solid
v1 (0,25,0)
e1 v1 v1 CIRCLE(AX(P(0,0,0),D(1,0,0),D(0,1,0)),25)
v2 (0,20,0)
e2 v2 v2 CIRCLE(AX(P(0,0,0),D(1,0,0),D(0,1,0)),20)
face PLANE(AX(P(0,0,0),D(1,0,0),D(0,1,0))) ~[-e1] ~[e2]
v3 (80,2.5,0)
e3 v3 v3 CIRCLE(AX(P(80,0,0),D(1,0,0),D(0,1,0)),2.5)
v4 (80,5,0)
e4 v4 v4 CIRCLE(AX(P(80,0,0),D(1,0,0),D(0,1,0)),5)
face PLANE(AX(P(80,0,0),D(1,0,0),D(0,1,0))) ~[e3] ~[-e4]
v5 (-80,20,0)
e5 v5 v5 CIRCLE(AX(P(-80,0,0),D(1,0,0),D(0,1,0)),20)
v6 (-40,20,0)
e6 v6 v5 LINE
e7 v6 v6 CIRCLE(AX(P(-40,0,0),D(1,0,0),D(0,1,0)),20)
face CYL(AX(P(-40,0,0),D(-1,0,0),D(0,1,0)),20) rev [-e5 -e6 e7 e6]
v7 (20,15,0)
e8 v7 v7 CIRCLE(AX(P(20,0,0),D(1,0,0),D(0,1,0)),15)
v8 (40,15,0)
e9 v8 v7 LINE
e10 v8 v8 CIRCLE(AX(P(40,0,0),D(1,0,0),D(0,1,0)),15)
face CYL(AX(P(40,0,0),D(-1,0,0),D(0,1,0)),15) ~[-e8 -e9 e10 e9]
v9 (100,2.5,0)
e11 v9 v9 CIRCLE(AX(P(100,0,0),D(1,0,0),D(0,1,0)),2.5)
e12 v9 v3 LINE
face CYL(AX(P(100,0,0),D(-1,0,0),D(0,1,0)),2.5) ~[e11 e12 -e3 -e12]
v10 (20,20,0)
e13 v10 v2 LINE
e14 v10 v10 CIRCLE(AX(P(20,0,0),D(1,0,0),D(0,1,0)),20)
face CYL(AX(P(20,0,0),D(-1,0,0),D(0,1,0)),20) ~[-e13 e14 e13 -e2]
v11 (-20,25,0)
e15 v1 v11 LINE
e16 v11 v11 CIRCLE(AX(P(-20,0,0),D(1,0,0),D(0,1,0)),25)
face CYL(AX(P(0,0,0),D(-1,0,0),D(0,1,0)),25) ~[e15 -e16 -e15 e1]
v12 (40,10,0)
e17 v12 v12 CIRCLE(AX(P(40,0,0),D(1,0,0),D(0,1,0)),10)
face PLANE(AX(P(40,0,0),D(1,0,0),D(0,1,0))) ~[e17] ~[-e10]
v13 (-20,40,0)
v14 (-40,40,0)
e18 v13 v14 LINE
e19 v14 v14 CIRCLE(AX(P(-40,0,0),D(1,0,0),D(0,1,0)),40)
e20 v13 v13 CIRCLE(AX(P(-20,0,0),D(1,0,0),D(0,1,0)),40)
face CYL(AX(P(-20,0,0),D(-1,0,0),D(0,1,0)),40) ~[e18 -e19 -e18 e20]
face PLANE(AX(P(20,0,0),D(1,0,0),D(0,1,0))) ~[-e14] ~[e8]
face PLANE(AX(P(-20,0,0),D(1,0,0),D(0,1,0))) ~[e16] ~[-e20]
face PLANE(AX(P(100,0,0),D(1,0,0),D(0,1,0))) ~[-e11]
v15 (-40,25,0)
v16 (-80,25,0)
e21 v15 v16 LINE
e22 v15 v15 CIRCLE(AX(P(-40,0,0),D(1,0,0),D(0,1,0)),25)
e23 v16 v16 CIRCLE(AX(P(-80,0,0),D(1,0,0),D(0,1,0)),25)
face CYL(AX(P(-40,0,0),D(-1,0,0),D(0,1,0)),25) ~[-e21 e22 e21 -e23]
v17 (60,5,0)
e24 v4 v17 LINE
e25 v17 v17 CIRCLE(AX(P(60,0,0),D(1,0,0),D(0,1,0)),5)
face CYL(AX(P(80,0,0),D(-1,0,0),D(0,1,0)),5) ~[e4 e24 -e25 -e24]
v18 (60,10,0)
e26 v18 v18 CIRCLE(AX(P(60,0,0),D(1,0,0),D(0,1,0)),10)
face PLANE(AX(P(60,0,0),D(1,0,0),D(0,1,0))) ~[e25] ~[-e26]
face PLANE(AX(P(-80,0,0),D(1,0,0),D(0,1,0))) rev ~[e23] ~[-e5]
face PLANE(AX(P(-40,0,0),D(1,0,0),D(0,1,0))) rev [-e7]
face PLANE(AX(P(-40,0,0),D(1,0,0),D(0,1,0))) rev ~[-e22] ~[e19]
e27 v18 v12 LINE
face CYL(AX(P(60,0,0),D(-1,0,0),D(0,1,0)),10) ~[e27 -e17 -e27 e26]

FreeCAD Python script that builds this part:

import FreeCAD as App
import Part
import Sketcher
from FreeCAD import Vector


def add_polygon(sketch, points):
    """Adds a closed chain of lines whose ends are joined by coincident constraints."""
    first, n = sketch.GeometryCount, len(points)
    for a, b in zip(points, points[1:] + points[:1]):
        sketch.addGeometry(Part.LineSegment(App.Vector(*a, 0), App.Vector(*b, 0)), False)
    for i in range(n):
        sketch.addConstraint(Sketcher.Constraint("Coincident", first + i, 2, first + (i + 1) % n, 1))

doc = App.newDocument("Part")
body = doc.addObject("PartDesign::Body", "Body")

sketch1 = doc.addObject("Sketcher::SketchObject", "Sketch")
body.addObject(sketch1)
sketch1.AttachmentSupport = (doc.XY_Plane, [""])
sketch1.MapMode = "FlatFace"
add_polygon(sketch1, [(-40, 20), (-40, 0), (100, 0), (100, 2.5), (80, 2.5), (80, 5), (60, 5), (60, 10), (40, 10), (40, 15), (20, 15), (20, 20), (0, 20), (0, 25), (-20, 25), (-20, 40), (-40, 40), (-40, 25), (-80, 25), (-80, 20)])
sketch1.addConstraint(Sketcher.Constraint("Vertical", 0))
sketch1.addConstraint(Sketcher.Constraint("Horizontal", 1))
sketch1.addConstraint(Sketcher.Constraint("Vertical", 2))
sketch1.addConstraint(Sketcher.Constraint("Horizontal", 3))
sketch1.addConstraint(Sketcher.Constraint("Vertical", 4))
sketch1.addConstraint(Sketcher.Constraint("Horizontal", 5))
sketch1.addConstraint(Sketcher.Constraint("Vertical", 6))
sketch1.addConstraint(Sketcher.Constraint("Horizontal", 7))
sketch1.addConstraint(Sketcher.Constraint("Vertical", 8))
sketch1.addConstraint(Sketcher.Constraint("Horizontal", 9))
sketch1.addConstraint(Sketcher.Constraint("Vertical", 10))
sketch1.addConstraint(Sketcher.Constraint("Horizontal", 11))
sketch1.addConstraint(Sketcher.Constraint("Vertical", 12))
sketch1.addConstraint(Sketcher.Constraint("Horizontal", 13))
sketch1.addConstraint(Sketcher.Constraint("Vertical", 14))
sketch1.addConstraint(Sketcher.Constraint("Horizontal", 15))
sketch1.addConstraint(Sketcher.Constraint("Vertical", 16))
sketch1.addConstraint(Sketcher.Constraint("Horizontal", 17))
sketch1.addConstraint(Sketcher.Constraint("Vertical", 18))
sketch1.addConstraint(Sketcher.Constraint("Horizontal", 19))
sketch1.addConstraint(Sketcher.Constraint("PointOnObject", 0, 2, -1))
sketch1.addConstraint(Sketcher.Constraint("PointOnObject", 11, 2, -2))
sketch1.addConstraint(Sketcher.Constraint("Horizontal", 13, 2, 16, 2))
sketch1.addConstraint(Sketcher.Constraint("Horizontal", 11, 2, 18, 2))
sketch1.addConstraint(Sketcher.Constraint("Vertical", 0, 2, 15, 2))
sketch1.addConstraint(Sketcher.Constraint("Equal", 3, 5))
sketch1.addConstraint(Sketcher.Constraint("Equal", 5, 7))
sketch1.addConstraint(Sketcher.Constraint("Equal", 7, 9))
sketch1.addConstraint(Sketcher.Constraint("Equal", 9, 11))
sketch1.addConstraint(Sketcher.Constraint("Equal", 11, 13))
sketch1.addConstraint(Sketcher.Constraint("Equal", 13, 15))
sketch1.addConstraint(Sketcher.Constraint("Equal", 15, 0))
sketch1.addConstraint(Sketcher.Constraint("Equal", 2, 4))
sketch1.addConstraint(Sketcher.Constraint("Equal", 6, 8))
sketch1.addConstraint(Sketcher.Constraint("Equal", 8, 10))
sketch1.addConstraint(Sketcher.Constraint("Equal", 10, 12))
sketch1.addConstraint(Sketcher.Constraint("DistanceX", 3, 2, 3, 1, 20.0))
sketch1.addConstraint(Sketcher.Constraint("DistanceX", 17, 2, 17, 1, 40.0))
sketch1.addConstraint(Sketcher.Constraint("DistanceY", 6, 1, 6, 2, 5.0))
sketch1.addConstraint(Sketcher.Constraint("DistanceY", 14, 1, 14, 2, 15.0))
revolution = doc.addObject("PartDesign::Revolution", "Revolution")
body.addObject(revolution)
revolution.Profile = sketch1
revolution.ReferenceAxis = (sketch1, ["H_Axis"])
revolution.Angle = 360

doc.recompute()
